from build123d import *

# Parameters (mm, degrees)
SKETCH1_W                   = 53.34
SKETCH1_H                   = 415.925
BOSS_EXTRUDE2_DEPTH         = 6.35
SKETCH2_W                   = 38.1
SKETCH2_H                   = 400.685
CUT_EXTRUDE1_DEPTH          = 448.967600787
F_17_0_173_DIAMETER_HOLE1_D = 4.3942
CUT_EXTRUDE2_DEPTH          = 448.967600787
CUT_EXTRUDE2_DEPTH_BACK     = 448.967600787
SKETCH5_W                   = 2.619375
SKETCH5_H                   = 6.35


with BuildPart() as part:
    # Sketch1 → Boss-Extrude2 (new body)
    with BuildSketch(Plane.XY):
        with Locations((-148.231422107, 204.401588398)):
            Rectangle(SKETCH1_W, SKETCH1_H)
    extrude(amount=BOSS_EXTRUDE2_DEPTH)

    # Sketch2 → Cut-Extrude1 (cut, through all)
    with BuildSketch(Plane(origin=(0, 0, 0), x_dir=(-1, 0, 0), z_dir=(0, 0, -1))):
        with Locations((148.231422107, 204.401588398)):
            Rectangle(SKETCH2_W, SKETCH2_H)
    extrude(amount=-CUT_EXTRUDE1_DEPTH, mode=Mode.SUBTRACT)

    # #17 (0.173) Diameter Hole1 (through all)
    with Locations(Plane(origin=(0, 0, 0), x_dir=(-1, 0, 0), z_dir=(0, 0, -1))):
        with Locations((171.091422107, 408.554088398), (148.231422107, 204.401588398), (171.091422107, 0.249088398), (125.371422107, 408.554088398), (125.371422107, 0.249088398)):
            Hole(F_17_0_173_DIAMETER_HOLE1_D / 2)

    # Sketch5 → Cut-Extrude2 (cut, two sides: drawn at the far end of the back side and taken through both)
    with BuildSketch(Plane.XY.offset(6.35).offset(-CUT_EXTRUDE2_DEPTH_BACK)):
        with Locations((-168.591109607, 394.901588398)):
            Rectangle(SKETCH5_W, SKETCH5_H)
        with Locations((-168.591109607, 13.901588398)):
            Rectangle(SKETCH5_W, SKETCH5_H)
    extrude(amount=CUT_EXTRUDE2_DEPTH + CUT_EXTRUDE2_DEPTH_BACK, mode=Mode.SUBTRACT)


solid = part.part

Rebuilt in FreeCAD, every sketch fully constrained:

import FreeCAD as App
import Part
import Sketcher

V = App.Vector
Q = App.Units.Quantity

doc = App.newDocument("Part")
body = doc.addObject("PartDesign::Body", "Body")

# Sketch on XY plane
sketch1 = body.newObject("Sketcher::SketchObject", "Sketch")
sketch1.AttachmentSupport = (doc.getObject("XY_Plane"), [""])
sketch1.MapMode = "FlatFace"
sketch1.addGeometry([
    Part.LineSegment(V(-175, 412, 0), V(-175, -4, 0)),
    Part.LineSegment(V(-175, -4, 0), V(-122, -4, 0)),
    Part.LineSegment(V(-122, -4, 0), V(-122, 412, 0)),
    Part.LineSegment(V(-122, 412, 0), V(-175, 412, 0)),
], False)
sketch1.addConstraint([
    Sketcher.Constraint("Coincident", 0, 2, 1, 1),
    Sketcher.Constraint("Coincident", 1, 2, 2, 1),
    Sketcher.Constraint("Coincident", 2, 2, 3, 1),
    Sketcher.Constraint("Coincident", 3, 2, 0, 1),
    Sketcher.Constraint("Vertical", 0),
    Sketcher.Constraint("Horizontal", 1),
    Sketcher.Constraint("Vertical", 2),
    Sketcher.Constraint("Horizontal", 3),
    Sketcher.Constraint("DistanceX", 1, 1, 1, 2, Q("2.1 in")),
    Sketcher.Constraint("DistanceY", 0, 2, 0, 1, Q("16.375 in")),
    Sketcher.Constraint("DistanceY", 0, 2, -1, 1, 3.560912),
    Sketcher.Constraint("DistanceX", 0, 2, -1, 1, 174.901422),
])
pad1 = body.newObject("PartDesign::Pad", "Pad")
pad1.Profile = sketch1
pad1.Length = Q("0.25 in")

# Sketch on XY plane
sketch2 = body.newObject("Sketcher::SketchObject", "Sketch001")
sketch2.AttachmentSupport = (doc.getObject("XY_Plane"), [""])
sketch2.MapMode = "FlatFace"
sketch2.addGeometry([
    Part.LineSegment(V(-129, 405, 0), V(-129, 4, 0)),
    Part.LineSegment(V(-129, 4, 0), V(-167, 4, 0)),
    Part.LineSegment(V(-167, 4, 0), V(-167, 405, 0)),
    Part.LineSegment(V(-167, 405, 0), V(-129, 405, 0)),
], False)
sketch2.addConstraint([
    Sketcher.Constraint("Coincident", 0, 2, 1, 1),
    Sketcher.Constraint("Coincident", 1, 2, 2, 1),
    Sketcher.Constraint("Coincident", 2, 2, 3, 1),
    Sketcher.Constraint("Coincident", 3, 2, 0, 1),
    Sketcher.Constraint("Vertical", 0),
    Sketcher.Constraint("Horizontal", 1),
    Sketcher.Constraint("Vertical", 2),
    Sketcher.Constraint("Horizontal", 3),
    Sketcher.Constraint("DistanceX", 1, 2, 1, 1, Q("1.5 in")),
    Sketcher.Constraint("DistanceY", 0, 2, 0, 1, Q("15.775 in")),
    Sketcher.Constraint("DistanceY", -1, 1, 0, 2, 4.059088),
    Sketcher.Constraint("DistanceX", 0, 2, -1, 1, 129.181422),
])
pocket1 = body.newObject("PartDesign::Pocket", "Pocket")
pocket1.Profile = sketch2
pocket1.Type = "ThroughAll"
pocket1.Reversed = True

# Sketch on XY plane
sketch3 = body.newObject("Sketcher::SketchObject", "Sketch002")
sketch3.AttachmentSupport = (doc.getObject("XY_Plane"), [""])
sketch3.MapMode = "FlatFace"
sketch3.addGeometry([
    Part.Circle(V(-171.1, 408.6, 0), V(0, 0, 1), 2.2),  # 0
    Part.Circle(V(-148.2, 204.4, 0), V(0, 0, 1), 2.2),  # 1
    Part.Circle(V(-171.1, 0.2, 0), V(0, 0, 1), 2.2),  # 2
    Part.Circle(V(-125.4, 408.6, 0), V(0, 0, 1), 2.2),  # 3
    Part.Circle(V(-125.4, 0.2, 0), V(0, 0, 1), 2.2),  # 4
], False)
sketch3.addConstraint([
    Sketcher.Constraint("Equal", 0, 1),
    Sketcher.Constraint("Equal", 1, 2),
    Sketcher.Constraint("Equal", 2, 3),
    Sketcher.Constraint("Equal", 3, 4),
    Sketcher.Constraint("Horizontal", 0, 3, 3, 3),
    Sketcher.Constraint("Horizontal", 2, 3, 4, 3),
    Sketcher.Constraint("Vertical", 0, 3, 2, 3),
    Sketcher.Constraint("Vertical", 3, 3, 4, 3),
    Sketcher.Constraint("Diameter", 0, Q("0.173 in")),
    Sketcher.Constraint("DistanceX", 0, 3, 1, 3, Q("0.9 in")),
    Sketcher.Constraint("DistanceX", 0, 3, 3, 3, Q("1.8 in")),
    Sketcher.Constraint("DistanceY", 2, 3, 0, 3, Q("16.075 in")),
    Sketcher.Constraint("DistanceY", 1, 3, 0, 3, Q("8.0375 in")),
    Sketcher.Constraint("DistanceY", -1, 1, 0, 3, 408.554088),
    Sketcher.Constraint("DistanceX", 0, 3, -1, 1, 171.091422),
])
doc.recompute()
hole = body.newObject("PartDesign::Hole", "Hole")
hole.Profile = sketch3
hole.ThreadType = "None"
hole.Diameter = Q("0.173 in")
hole.DepthType = "ThroughAll"
hole.Reversed = True

# Sketch on XY plane
sketch4 = body.newObject("Sketcher::SketchObject", "Sketch003")
sketch4.AttachmentSupport = (doc.getObject("XY_Plane"), [""])
sketch4.MapMode = "FlatFace"
sketch4.AttachmentOffset = App.Placement(V(0, 0, 0.25 * 25.4), App.Rotation())
sketch4.addGeometry([
    Part.LineSegment(V(-169.9, 398.1, 0), V(-169.9, 391.7, 0)),  # 0
    Part.LineSegment(V(-169.9, 391.7, 0), V(-167.3, 391.7, 0)),  # 1
    Part.LineSegment(V(-167.3, 391.7, 0), V(-167.3, 398.1, 0)),  # 2
    Part.LineSegment(V(-167.3, 398.1, 0), V(-169.9, 398.1, 0)),  # 3
    Part.LineSegment(V(-169.9, 17.1, 0), V(-169.9, 10.7, 0)),  # 4
    Part.LineSegment(V(-169.9, 10.7, 0), V(-167.3, 10.7, 0)),  # 5
    Part.LineSegment(V(-167.3, 10.7, 0), V(-167.3, 17.1, 0)),  # 6
    Part.LineSegment(V(-167.3, 17.1, 0), V(-169.9, 17.1, 0)),  # 7
], False)
sketch4.addConstraint([
    Sketcher.Constraint("Coincident", 0, 2, 1, 1),
    Sketcher.Constraint("Coincident", 1, 2, 2, 1),
    Sketcher.Constraint("Coincident", 2, 2, 3, 1),
    Sketcher.Constraint("Coincident", 3, 2, 0, 1),
    Sketcher.Constraint("Coincident", 4, 2, 5, 1),
    Sketcher.Constraint("Coincident", 5, 2, 6, 1),
    Sketcher.Constraint("Coincident", 6, 2, 7, 1),
    Sketcher.Constraint("Coincident", 7, 2, 4, 1),
    Sketcher.Constraint("Vertical", 0),
    Sketcher.Constraint("Horizontal", 1),
    Sketcher.Constraint("Vertical", 2),
    Sketcher.Constraint("Horizontal", 3),
    Sketcher.Constraint("Vertical", 4),
    Sketcher.Constraint("Horizontal", 5),
    Sketcher.Constraint("Vertical", 6),
    Sketcher.Constraint("Horizontal", 7),
    Sketcher.Constraint("Vertical", 3, 2, 4, 2),
    Sketcher.Constraint("Vertical", 2, 2, 5, 2),
    Sketcher.Constraint("Equal", 2, 4),
    Sketcher.Constraint("DistanceY", 4, 2, 0, 2, Q("15 in")),
    Sketcher.Constraint("DistanceY", 0, 2, 0, 1, Q("0.25 in")),
    Sketcher.Constraint("DistanceX", 1, 1, 1, 2, 2.619375),
    Sketcher.Constraint("DistanceY", -1, 1, 0, 2, 391.726588),
    Sketcher.Constraint("DistanceX", 0, 2, -1, 1, 169.900797),
])
pocket2 = body.newObject("PartDesign::Pocket", "Pocket001")
pocket2.Profile = sketch4
pocket2.Type = "ThroughAll"
pocket2.Midplane = True

doc.recompute()
